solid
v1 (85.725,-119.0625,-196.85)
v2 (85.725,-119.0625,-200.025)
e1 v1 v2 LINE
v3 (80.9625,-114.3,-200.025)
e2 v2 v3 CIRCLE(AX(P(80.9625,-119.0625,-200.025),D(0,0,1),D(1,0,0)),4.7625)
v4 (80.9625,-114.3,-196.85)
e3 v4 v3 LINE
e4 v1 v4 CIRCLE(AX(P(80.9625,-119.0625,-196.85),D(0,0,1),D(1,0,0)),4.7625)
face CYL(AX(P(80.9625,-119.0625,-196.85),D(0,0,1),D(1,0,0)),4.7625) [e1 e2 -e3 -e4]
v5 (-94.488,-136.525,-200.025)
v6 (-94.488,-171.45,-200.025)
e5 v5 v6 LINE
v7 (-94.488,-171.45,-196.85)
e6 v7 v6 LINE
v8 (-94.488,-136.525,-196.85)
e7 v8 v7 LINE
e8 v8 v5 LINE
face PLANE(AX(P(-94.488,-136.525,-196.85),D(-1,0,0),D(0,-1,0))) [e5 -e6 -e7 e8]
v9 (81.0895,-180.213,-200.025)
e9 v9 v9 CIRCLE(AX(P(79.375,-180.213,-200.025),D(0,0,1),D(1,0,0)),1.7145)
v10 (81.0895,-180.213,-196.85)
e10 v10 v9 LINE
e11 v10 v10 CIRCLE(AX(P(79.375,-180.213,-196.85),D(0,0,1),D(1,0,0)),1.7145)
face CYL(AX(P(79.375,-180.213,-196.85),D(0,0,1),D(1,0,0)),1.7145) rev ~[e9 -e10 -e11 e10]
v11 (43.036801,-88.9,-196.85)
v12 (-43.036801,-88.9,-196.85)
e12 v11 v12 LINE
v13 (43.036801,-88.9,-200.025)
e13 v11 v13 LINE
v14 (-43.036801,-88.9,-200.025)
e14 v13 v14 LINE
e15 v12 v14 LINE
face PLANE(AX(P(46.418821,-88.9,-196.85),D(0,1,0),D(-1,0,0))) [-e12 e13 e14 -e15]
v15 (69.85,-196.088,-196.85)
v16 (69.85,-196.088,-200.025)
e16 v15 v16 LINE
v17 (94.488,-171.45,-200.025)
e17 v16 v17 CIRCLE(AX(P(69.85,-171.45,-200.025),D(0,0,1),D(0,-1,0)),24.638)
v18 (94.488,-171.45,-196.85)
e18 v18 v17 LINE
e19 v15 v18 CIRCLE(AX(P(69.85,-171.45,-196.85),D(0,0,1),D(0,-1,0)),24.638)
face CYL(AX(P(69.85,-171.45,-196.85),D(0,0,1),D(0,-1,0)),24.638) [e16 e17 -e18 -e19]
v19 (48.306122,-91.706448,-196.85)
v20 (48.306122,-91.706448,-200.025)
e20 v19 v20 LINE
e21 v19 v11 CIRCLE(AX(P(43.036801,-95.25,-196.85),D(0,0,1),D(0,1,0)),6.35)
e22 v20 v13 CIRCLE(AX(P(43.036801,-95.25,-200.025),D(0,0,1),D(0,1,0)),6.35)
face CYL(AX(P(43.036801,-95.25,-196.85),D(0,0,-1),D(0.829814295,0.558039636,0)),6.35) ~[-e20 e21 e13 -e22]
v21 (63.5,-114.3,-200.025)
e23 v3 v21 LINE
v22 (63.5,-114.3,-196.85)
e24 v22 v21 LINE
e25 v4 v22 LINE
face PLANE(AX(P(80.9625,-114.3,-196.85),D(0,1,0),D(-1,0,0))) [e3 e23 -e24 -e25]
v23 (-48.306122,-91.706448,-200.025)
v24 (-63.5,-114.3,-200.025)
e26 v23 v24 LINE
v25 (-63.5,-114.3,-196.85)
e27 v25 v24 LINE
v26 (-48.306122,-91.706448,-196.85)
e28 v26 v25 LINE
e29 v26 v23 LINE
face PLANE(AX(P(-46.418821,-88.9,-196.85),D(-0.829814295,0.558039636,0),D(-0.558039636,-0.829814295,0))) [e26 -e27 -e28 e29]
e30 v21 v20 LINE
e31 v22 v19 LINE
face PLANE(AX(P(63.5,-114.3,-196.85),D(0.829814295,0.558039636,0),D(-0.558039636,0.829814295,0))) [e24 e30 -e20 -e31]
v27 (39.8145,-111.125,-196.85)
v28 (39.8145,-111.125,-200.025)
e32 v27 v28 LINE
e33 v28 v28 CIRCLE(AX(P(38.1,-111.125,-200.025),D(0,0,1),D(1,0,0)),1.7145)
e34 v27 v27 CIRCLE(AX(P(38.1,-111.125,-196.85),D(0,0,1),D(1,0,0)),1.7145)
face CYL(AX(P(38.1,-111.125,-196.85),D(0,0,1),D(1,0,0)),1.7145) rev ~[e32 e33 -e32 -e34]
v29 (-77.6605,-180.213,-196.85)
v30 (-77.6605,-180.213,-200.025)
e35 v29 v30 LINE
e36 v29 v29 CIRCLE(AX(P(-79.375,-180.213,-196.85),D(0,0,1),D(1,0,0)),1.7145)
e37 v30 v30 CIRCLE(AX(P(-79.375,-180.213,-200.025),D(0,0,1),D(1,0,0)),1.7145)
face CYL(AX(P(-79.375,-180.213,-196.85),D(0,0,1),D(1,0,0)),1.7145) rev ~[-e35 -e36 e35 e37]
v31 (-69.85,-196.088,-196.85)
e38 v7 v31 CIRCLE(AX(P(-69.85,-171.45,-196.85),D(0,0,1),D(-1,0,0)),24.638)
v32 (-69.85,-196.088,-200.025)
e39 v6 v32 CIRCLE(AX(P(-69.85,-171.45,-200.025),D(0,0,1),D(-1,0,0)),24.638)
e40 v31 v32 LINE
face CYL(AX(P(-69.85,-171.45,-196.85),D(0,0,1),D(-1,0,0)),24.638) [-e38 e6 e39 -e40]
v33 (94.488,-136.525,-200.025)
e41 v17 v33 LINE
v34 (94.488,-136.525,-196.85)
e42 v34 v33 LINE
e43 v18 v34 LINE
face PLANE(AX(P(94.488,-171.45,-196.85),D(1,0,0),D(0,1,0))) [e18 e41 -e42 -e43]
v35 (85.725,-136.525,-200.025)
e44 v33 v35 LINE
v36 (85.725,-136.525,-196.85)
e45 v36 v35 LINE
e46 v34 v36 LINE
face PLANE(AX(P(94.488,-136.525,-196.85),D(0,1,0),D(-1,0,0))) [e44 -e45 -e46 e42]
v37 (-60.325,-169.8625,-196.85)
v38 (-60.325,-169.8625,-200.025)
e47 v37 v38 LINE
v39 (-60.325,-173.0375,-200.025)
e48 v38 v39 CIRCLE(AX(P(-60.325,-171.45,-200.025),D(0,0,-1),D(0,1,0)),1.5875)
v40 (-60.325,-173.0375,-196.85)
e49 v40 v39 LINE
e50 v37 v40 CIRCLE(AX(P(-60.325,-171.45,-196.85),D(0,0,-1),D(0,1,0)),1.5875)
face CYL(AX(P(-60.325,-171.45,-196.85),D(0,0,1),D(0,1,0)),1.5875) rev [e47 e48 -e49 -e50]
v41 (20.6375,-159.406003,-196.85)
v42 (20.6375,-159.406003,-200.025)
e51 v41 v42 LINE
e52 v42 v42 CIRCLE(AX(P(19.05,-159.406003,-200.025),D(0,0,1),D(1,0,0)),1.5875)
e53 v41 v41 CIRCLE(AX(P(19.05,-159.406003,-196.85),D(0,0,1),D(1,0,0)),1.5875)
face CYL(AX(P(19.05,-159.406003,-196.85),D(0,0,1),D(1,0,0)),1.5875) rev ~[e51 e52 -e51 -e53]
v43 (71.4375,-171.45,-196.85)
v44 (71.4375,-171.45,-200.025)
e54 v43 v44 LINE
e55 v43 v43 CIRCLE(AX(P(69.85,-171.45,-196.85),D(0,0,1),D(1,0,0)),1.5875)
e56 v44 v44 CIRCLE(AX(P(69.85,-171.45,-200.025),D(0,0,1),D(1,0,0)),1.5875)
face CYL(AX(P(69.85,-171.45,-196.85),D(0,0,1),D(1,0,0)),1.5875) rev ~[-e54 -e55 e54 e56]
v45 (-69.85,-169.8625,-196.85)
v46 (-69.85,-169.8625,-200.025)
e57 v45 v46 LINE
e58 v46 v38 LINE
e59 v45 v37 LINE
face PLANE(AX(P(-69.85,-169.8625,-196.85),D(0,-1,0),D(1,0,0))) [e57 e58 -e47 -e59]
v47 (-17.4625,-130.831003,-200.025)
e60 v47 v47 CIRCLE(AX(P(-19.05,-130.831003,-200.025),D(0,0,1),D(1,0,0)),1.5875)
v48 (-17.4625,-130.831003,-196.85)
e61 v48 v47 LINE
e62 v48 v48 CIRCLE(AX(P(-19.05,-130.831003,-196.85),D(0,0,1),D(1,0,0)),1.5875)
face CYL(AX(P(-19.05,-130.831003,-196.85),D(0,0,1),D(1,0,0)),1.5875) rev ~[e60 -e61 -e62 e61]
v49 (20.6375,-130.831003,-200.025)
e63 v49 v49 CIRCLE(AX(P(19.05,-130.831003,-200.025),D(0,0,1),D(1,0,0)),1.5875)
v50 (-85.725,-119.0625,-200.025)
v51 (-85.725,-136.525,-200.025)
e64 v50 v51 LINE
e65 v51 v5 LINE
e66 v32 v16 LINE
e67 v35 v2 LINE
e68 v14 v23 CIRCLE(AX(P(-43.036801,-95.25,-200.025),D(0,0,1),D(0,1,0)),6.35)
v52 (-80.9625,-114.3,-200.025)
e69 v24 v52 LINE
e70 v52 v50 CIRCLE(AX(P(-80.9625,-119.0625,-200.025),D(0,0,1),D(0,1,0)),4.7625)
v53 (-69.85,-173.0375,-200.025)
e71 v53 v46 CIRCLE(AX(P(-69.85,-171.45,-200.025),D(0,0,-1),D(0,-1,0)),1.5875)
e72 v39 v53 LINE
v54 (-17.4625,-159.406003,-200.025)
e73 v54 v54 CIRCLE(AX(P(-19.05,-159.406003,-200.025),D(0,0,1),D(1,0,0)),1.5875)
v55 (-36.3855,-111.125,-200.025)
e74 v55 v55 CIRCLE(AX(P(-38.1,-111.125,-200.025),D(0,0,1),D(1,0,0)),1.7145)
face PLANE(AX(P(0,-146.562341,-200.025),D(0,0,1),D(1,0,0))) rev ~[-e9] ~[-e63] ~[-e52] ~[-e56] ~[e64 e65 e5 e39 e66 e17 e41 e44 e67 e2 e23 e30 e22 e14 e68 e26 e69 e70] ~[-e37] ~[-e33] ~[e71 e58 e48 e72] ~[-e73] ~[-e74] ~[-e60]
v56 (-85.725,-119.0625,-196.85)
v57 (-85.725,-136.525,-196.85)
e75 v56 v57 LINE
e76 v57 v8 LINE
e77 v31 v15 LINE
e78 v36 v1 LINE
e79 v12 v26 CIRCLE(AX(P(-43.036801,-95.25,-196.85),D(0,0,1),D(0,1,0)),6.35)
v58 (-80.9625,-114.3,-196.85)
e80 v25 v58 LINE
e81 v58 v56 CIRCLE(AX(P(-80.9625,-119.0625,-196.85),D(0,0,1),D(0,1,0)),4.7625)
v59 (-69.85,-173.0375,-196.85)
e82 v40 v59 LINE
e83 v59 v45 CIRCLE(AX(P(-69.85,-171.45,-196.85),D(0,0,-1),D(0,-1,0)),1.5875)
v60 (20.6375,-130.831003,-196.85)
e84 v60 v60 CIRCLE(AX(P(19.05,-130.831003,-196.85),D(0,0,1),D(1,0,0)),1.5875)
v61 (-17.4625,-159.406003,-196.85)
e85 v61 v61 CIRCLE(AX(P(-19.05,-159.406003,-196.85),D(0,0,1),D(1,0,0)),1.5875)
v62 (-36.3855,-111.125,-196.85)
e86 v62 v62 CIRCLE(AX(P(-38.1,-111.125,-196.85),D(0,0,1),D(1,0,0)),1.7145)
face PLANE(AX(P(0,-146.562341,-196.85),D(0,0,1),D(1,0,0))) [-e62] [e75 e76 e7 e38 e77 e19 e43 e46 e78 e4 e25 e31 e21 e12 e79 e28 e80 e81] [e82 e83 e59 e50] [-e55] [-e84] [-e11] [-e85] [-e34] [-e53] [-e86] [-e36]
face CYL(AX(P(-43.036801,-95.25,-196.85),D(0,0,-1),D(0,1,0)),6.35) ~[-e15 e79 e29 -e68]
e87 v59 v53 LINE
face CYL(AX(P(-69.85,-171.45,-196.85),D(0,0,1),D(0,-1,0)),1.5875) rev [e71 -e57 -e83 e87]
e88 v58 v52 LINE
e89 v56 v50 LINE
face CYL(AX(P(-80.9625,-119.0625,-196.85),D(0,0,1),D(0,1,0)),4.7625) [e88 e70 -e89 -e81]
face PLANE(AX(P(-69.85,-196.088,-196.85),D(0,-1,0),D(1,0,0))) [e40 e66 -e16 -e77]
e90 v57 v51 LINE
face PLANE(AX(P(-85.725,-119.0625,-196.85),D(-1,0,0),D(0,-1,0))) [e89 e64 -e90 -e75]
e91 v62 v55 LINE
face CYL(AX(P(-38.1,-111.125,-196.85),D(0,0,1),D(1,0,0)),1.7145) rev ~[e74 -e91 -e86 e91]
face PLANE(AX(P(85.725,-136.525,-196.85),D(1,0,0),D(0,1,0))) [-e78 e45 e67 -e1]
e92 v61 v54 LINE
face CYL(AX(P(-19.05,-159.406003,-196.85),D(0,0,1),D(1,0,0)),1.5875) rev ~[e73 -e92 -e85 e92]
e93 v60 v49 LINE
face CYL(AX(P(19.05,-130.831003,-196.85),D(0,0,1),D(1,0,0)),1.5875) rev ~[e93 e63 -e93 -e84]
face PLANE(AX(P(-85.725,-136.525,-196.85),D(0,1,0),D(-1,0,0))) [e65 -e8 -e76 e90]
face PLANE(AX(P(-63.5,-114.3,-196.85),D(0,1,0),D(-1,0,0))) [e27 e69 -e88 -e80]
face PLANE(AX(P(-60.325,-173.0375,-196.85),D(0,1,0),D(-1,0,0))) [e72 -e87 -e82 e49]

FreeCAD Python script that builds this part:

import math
import FreeCAD as App
import Part
import Sketcher
from FreeCAD import Vector
Q = App.Units.Quantity


def edges_at(feature, points):
    """Names of the edges that pass closest to the given points."""
    edges = feature.Shape.Edges
    near = lambda p: min(range(len(edges)), key=lambda i: edges[i].distToShape(Part.Vertex(*p))[0])
    return sorted({f"Edge{near(p) + 1}" for p in points})

doc = App.newDocument("Part")
body = doc.addObject("PartDesign::Body", "Body")

# Sketch on XY plane
sketch1 = body.newObject("Sketcher::SketchObject", "Sketch")
sketch1.AttachmentSupport = (doc.getObject("XY_Plane"), [""])
sketch1.MapMode = "FlatFace"
sketch1.AttachmentOffset = App.Placement(Vector(0, 0, -7.75 * 25.4), App.Rotation())
sketch1.addGeometry([
    Part.LineSegment(Vector(63.5, -114.3, 0), Vector(46.4, -88.9, 0)),  # 0
    Part.LineSegment(Vector(46.4, -88.9, 0), Vector(-46.4, -88.9, 0)),  # 1
    Part.LineSegment(Vector(-46.4, -88.9, 0), Vector(-63.5, -114.3, 0)),  # 2
    Part.LineSegment(Vector(-63.5, -114.3, 0), Vector(-81, -114.3, 0)),  # 3
    Part.ArcOfCircle(Part.Circle(Vector(-81, -119.1, 0), Vector(0, 0, 1), 4.8), math.radians(90), math.radians(180)),  # 4
    Part.LineSegment(Vector(-85.7, -119.1, 0), Vector(-85.7, -136.5, 0)),  # 5
    Part.LineSegment(Vector(-85.7, -136.5, 0), Vector(-94.5, -136.5, 0)),  # 6
    Part.LineSegment(Vector(-94.5, -136.5, 0), Vector(-94.5, -171.4, 0)),  # 7
    Part.ArcOfCircle(Part.Circle(Vector(-69.8, -171.4, 0), Vector(0, 0, 1), 24.6), math.radians(180), math.radians(270)),  # 8
    Part.LineSegment(Vector(-69.8, -196.1, 0), Vector(69.8, -196.1, 0)),  # 9
    Part.ArcOfCircle(Part.Circle(Vector(69.8, -171.4, 0), Vector(0, 0, 1), 24.6), math.radians(-90), math.radians(0)),  # 10
    Part.LineSegment(Vector(94.5, -171.4, 0), Vector(94.5, -136.5, 0)),  # 11
    Part.LineSegment(Vector(94.5, -136.5, 0), Vector(85.7, -136.5, 0)),  # 12
    Part.LineSegment(Vector(85.7, -136.5, 0), Vector(85.7, -119.1, 0)),  # 13
    Part.ArcOfCircle(Part.Circle(Vector(81, -119.1, 0), Vector(0, 0, 1), 4.8), math.radians(0), math.radians(90)),  # 14
    Part.LineSegment(Vector(81, -114.3, 0), Vector(63.5, -114.3, 0)),  # 15
    Part.Circle(Vector(-79.4, -180.2, 0), Vector(0, 0, 1), 1.7),  # 16
    Part.LineSegment(Vector(-60.3, -173, 0), Vector(-69.8, -173, 0)),  # 17
    Part.ArcOfCircle(Part.Circle(Vector(-69.8, -171.4, 0), Vector(0, 0, 1), 1.6), math.radians(90), math.radians(270)),  # 18
    Part.LineSegment(Vector(-69.8, -169.9, 0), Vector(-60.3, -169.9, 0)),  # 19
    Part.ArcOfCircle(Part.Circle(Vector(-60.3, -171.4, 0), Vector(0, 0, 1), 1.6), math.radians(-90), math.radians(90)),  # 20
    Part.Circle(Vector(-19.1, -159.4, 0), Vector(0, 0, 1), 1.6),  # 21
    Part.Circle(Vector(79.4, -180.2, 0), Vector(0, 0, 1), 1.7),  # 22
    Part.Circle(Vector(69.8, -171.4, 0), Vector(0, 0, 1), 1.6),  # 23
    Part.Circle(Vector(19.1, -159.4, 0), Vector(0, 0, 1), 1.6),  # 24
    Part.Circle(Vector(-19.1, -130.8, 0), Vector(0, 0, 1), 1.6),  # 25
    Part.Circle(Vector(-38.1, -111.1, 0), Vector(0, 0, 1), 1.7),  # 26
    Part.Circle(Vector(19.1, -130.8, 0), Vector(0, 0, 1), 1.6),  # 27
    Part.Circle(Vector(38.1, -111.1, 0), Vector(0, 0, 1), 1.7),  # 28
], False)
sketch1.addConstraint([
    Sketcher.Constraint("Coincident", 0, 2, 1, 1),
    Sketcher.Constraint("Coincident", 1, 2, 2, 1),
    Sketcher.Constraint("Coincident", 2, 2, 3, 1),
    Sketcher.Constraint("Tangent", 3, 2, 4, 1),
    Sketcher.Constraint("Tangent", 4, 2, 5, 1),
    Sketcher.Constraint("Coincident", 5, 2, 6, 1),
    Sketcher.Constraint("Coincident", 6, 2, 7, 1),
    Sketcher.Constraint("Tangent", 7, 2, 8, 1),
    Sketcher.Constraint("Tangent", 8, 2, 9, 1),
    Sketcher.Constraint("Tangent", 9, 2, 10, 1),
    Sketcher.Constraint("Tangent", 10, 2, 11, 1),
    Sketcher.Constraint("Coincident", 11, 2, 12, 1),
    Sketcher.Constraint("Coincident", 12, 2, 13, 1),
    Sketcher.Constraint("Tangent", 13, 2, 14, 1),
    Sketcher.Constraint("Tangent", 14, 2, 15, 1),
    Sketcher.Constraint("Coincident", 15, 2, 0, 1),
    Sketcher.Constraint("Tangent", 17, 2, 18, 2),
    Sketcher.Constraint("Tangent", 18, 1, 19, 1),
    Sketcher.Constraint("Tangent", 19, 2, 20, 2),
    Sketcher.Constraint("Tangent", 20, 1, 17, 1),
    Sketcher.Constraint("Horizontal", 1),
    Sketcher.Constraint("Horizontal", 3),
    Sketcher.Constraint("Vertical", 5),
    Sketcher.Constraint("Horizontal", 6),
    Sketcher.Constraint("Vertical", 7),
    Sketcher.Constraint("Horizontal", 9),
    Sketcher.Constraint("Vertical", 11),
    Sketcher.Constraint("Horizontal", 12),
    Sketcher.Constraint("Vertical", 13),
    Sketcher.Constraint("Horizontal", 15),
    Sketcher.Constraint("Horizontal", 17),
    Sketcher.Constraint("Horizontal", 19),
    Sketcher.Constraint("Coincident", 18, 3, 8, 3),
    Sketcher.Constraint("Coincident", 23, 3, 10, 3),
    Sketcher.Constraint("Equal", 8, 10),
    Sketcher.Constraint("Equal", 4, 14),
    Sketcher.Constraint("Equal", 20, 21),
    Sketcher.Constraint("Equal", 16, 22),
    Sketcher.Constraint("Equal", 21, 23),
    Sketcher.Constraint("Equal", 23, 24),
    Sketcher.Constraint("Equal", 24, 25),
    Sketcher.Constraint("Equal", 22, 26),
    Sketcher.Constraint("Equal", 25, 27),
    Sketcher.Constraint("Equal", 26, 28),
    Sketcher.Constraint("Symmetric", 4, 3, 14, 3, -2),
    Sketcher.Constraint("Symmetric", 16, 3, 22, 3, -2),
    Sketcher.Constraint("Symmetric", 21, 3, 24, 3, -2),
    Sketcher.Constraint("Symmetric", 25, 3, 27, 3, -2),
    Sketcher.Constraint("Symmetric", 26, 3, 28, 3, -2),
    Sketcher.Constraint("Symmetric", 6, 2, 11, 2, -2),
    Sketcher.Constraint("Vertical", 21, 3, 25, 3),
    Sketcher.Constraint("Equal", 3, 15),
    Sketcher.Constraint("Equal", 15, 5),
    Sketcher.Constraint("Equal", 0, 2),
    Sketcher.Constraint("Radius", 8, Q("0.97 in")),
    Sketcher.Constraint("Diameter", 16, Q("0.135 in")),
    Sketcher.Constraint("Diameter", 21, Q("0.125 in")),
    Sketcher.Constraint("DistanceX", 9, 1, 9, 2, Q("5.5 in")),
    Sketcher.Constraint("Radius", 4, Q("0.1875 in")),
    Sketcher.Constraint("DistanceX", 8, 3, 21, 3, Q("2 in")),
    Sketcher.Constraint("DistanceX", 2, 2, 26, 3, Q("1 in")),
    Sketcher.Constraint("DistanceY", 2, 2, 1, 2, Q("1 in")),
    Sketcher.Constraint("DistanceX", 26, 3, -1, 1, Q("1.5 in")),
    Sketcher.Constraint("DistanceY", 0, 2, -1, 1, Q("3.5 in")),
    Sketcher.Constraint("DistanceX", 20, 3, 22, 3, Q("5.5 in")),
    Sketcher.Constraint("DistanceX", 3, 2, 3, 1, Q("0.6875 in")),
    Sketcher.Constraint("DistanceX", 17, 2, 17, 1, Q("0.375 in")),
    Sketcher.Constraint("DistanceY", 7, 2, 7, 1, Q("1.375 in")),
    Sketcher.Constraint("DistanceY", 22, 3, 11, 2, Q("1.72 in")),
    Sketcher.Constraint("DistanceY", 26, 3, -1, 1, Q("4.375 in")),
    Sketcher.Constraint("DistanceY", 21, 3, 25, 3, Q("1.125 in")),
    Sketcher.Constraint("DistanceX", 1, 2, 1, 1, Q("92.837641 mm")),
    Sketcher.Constraint("DistanceY", 21, 3, -1, 1, Q("159.406003 mm")),
])
pad1 = body.newObject("PartDesign::Pad", "Pad")
pad1.Profile = sketch1
pad1.Length = Q("0.125 in")
pad1.Reversed = True
doc.recompute()

fillet = body.newObject("PartDesign::Fillet", "Fillet")
fillet.Base = (pad1, edges_at(pad1, [(-46.419, -88.9, -198.438), (46.419, -88.9, -198.438)]))
fillet.Radius = Q("0.25 in")

doc.recompute()
